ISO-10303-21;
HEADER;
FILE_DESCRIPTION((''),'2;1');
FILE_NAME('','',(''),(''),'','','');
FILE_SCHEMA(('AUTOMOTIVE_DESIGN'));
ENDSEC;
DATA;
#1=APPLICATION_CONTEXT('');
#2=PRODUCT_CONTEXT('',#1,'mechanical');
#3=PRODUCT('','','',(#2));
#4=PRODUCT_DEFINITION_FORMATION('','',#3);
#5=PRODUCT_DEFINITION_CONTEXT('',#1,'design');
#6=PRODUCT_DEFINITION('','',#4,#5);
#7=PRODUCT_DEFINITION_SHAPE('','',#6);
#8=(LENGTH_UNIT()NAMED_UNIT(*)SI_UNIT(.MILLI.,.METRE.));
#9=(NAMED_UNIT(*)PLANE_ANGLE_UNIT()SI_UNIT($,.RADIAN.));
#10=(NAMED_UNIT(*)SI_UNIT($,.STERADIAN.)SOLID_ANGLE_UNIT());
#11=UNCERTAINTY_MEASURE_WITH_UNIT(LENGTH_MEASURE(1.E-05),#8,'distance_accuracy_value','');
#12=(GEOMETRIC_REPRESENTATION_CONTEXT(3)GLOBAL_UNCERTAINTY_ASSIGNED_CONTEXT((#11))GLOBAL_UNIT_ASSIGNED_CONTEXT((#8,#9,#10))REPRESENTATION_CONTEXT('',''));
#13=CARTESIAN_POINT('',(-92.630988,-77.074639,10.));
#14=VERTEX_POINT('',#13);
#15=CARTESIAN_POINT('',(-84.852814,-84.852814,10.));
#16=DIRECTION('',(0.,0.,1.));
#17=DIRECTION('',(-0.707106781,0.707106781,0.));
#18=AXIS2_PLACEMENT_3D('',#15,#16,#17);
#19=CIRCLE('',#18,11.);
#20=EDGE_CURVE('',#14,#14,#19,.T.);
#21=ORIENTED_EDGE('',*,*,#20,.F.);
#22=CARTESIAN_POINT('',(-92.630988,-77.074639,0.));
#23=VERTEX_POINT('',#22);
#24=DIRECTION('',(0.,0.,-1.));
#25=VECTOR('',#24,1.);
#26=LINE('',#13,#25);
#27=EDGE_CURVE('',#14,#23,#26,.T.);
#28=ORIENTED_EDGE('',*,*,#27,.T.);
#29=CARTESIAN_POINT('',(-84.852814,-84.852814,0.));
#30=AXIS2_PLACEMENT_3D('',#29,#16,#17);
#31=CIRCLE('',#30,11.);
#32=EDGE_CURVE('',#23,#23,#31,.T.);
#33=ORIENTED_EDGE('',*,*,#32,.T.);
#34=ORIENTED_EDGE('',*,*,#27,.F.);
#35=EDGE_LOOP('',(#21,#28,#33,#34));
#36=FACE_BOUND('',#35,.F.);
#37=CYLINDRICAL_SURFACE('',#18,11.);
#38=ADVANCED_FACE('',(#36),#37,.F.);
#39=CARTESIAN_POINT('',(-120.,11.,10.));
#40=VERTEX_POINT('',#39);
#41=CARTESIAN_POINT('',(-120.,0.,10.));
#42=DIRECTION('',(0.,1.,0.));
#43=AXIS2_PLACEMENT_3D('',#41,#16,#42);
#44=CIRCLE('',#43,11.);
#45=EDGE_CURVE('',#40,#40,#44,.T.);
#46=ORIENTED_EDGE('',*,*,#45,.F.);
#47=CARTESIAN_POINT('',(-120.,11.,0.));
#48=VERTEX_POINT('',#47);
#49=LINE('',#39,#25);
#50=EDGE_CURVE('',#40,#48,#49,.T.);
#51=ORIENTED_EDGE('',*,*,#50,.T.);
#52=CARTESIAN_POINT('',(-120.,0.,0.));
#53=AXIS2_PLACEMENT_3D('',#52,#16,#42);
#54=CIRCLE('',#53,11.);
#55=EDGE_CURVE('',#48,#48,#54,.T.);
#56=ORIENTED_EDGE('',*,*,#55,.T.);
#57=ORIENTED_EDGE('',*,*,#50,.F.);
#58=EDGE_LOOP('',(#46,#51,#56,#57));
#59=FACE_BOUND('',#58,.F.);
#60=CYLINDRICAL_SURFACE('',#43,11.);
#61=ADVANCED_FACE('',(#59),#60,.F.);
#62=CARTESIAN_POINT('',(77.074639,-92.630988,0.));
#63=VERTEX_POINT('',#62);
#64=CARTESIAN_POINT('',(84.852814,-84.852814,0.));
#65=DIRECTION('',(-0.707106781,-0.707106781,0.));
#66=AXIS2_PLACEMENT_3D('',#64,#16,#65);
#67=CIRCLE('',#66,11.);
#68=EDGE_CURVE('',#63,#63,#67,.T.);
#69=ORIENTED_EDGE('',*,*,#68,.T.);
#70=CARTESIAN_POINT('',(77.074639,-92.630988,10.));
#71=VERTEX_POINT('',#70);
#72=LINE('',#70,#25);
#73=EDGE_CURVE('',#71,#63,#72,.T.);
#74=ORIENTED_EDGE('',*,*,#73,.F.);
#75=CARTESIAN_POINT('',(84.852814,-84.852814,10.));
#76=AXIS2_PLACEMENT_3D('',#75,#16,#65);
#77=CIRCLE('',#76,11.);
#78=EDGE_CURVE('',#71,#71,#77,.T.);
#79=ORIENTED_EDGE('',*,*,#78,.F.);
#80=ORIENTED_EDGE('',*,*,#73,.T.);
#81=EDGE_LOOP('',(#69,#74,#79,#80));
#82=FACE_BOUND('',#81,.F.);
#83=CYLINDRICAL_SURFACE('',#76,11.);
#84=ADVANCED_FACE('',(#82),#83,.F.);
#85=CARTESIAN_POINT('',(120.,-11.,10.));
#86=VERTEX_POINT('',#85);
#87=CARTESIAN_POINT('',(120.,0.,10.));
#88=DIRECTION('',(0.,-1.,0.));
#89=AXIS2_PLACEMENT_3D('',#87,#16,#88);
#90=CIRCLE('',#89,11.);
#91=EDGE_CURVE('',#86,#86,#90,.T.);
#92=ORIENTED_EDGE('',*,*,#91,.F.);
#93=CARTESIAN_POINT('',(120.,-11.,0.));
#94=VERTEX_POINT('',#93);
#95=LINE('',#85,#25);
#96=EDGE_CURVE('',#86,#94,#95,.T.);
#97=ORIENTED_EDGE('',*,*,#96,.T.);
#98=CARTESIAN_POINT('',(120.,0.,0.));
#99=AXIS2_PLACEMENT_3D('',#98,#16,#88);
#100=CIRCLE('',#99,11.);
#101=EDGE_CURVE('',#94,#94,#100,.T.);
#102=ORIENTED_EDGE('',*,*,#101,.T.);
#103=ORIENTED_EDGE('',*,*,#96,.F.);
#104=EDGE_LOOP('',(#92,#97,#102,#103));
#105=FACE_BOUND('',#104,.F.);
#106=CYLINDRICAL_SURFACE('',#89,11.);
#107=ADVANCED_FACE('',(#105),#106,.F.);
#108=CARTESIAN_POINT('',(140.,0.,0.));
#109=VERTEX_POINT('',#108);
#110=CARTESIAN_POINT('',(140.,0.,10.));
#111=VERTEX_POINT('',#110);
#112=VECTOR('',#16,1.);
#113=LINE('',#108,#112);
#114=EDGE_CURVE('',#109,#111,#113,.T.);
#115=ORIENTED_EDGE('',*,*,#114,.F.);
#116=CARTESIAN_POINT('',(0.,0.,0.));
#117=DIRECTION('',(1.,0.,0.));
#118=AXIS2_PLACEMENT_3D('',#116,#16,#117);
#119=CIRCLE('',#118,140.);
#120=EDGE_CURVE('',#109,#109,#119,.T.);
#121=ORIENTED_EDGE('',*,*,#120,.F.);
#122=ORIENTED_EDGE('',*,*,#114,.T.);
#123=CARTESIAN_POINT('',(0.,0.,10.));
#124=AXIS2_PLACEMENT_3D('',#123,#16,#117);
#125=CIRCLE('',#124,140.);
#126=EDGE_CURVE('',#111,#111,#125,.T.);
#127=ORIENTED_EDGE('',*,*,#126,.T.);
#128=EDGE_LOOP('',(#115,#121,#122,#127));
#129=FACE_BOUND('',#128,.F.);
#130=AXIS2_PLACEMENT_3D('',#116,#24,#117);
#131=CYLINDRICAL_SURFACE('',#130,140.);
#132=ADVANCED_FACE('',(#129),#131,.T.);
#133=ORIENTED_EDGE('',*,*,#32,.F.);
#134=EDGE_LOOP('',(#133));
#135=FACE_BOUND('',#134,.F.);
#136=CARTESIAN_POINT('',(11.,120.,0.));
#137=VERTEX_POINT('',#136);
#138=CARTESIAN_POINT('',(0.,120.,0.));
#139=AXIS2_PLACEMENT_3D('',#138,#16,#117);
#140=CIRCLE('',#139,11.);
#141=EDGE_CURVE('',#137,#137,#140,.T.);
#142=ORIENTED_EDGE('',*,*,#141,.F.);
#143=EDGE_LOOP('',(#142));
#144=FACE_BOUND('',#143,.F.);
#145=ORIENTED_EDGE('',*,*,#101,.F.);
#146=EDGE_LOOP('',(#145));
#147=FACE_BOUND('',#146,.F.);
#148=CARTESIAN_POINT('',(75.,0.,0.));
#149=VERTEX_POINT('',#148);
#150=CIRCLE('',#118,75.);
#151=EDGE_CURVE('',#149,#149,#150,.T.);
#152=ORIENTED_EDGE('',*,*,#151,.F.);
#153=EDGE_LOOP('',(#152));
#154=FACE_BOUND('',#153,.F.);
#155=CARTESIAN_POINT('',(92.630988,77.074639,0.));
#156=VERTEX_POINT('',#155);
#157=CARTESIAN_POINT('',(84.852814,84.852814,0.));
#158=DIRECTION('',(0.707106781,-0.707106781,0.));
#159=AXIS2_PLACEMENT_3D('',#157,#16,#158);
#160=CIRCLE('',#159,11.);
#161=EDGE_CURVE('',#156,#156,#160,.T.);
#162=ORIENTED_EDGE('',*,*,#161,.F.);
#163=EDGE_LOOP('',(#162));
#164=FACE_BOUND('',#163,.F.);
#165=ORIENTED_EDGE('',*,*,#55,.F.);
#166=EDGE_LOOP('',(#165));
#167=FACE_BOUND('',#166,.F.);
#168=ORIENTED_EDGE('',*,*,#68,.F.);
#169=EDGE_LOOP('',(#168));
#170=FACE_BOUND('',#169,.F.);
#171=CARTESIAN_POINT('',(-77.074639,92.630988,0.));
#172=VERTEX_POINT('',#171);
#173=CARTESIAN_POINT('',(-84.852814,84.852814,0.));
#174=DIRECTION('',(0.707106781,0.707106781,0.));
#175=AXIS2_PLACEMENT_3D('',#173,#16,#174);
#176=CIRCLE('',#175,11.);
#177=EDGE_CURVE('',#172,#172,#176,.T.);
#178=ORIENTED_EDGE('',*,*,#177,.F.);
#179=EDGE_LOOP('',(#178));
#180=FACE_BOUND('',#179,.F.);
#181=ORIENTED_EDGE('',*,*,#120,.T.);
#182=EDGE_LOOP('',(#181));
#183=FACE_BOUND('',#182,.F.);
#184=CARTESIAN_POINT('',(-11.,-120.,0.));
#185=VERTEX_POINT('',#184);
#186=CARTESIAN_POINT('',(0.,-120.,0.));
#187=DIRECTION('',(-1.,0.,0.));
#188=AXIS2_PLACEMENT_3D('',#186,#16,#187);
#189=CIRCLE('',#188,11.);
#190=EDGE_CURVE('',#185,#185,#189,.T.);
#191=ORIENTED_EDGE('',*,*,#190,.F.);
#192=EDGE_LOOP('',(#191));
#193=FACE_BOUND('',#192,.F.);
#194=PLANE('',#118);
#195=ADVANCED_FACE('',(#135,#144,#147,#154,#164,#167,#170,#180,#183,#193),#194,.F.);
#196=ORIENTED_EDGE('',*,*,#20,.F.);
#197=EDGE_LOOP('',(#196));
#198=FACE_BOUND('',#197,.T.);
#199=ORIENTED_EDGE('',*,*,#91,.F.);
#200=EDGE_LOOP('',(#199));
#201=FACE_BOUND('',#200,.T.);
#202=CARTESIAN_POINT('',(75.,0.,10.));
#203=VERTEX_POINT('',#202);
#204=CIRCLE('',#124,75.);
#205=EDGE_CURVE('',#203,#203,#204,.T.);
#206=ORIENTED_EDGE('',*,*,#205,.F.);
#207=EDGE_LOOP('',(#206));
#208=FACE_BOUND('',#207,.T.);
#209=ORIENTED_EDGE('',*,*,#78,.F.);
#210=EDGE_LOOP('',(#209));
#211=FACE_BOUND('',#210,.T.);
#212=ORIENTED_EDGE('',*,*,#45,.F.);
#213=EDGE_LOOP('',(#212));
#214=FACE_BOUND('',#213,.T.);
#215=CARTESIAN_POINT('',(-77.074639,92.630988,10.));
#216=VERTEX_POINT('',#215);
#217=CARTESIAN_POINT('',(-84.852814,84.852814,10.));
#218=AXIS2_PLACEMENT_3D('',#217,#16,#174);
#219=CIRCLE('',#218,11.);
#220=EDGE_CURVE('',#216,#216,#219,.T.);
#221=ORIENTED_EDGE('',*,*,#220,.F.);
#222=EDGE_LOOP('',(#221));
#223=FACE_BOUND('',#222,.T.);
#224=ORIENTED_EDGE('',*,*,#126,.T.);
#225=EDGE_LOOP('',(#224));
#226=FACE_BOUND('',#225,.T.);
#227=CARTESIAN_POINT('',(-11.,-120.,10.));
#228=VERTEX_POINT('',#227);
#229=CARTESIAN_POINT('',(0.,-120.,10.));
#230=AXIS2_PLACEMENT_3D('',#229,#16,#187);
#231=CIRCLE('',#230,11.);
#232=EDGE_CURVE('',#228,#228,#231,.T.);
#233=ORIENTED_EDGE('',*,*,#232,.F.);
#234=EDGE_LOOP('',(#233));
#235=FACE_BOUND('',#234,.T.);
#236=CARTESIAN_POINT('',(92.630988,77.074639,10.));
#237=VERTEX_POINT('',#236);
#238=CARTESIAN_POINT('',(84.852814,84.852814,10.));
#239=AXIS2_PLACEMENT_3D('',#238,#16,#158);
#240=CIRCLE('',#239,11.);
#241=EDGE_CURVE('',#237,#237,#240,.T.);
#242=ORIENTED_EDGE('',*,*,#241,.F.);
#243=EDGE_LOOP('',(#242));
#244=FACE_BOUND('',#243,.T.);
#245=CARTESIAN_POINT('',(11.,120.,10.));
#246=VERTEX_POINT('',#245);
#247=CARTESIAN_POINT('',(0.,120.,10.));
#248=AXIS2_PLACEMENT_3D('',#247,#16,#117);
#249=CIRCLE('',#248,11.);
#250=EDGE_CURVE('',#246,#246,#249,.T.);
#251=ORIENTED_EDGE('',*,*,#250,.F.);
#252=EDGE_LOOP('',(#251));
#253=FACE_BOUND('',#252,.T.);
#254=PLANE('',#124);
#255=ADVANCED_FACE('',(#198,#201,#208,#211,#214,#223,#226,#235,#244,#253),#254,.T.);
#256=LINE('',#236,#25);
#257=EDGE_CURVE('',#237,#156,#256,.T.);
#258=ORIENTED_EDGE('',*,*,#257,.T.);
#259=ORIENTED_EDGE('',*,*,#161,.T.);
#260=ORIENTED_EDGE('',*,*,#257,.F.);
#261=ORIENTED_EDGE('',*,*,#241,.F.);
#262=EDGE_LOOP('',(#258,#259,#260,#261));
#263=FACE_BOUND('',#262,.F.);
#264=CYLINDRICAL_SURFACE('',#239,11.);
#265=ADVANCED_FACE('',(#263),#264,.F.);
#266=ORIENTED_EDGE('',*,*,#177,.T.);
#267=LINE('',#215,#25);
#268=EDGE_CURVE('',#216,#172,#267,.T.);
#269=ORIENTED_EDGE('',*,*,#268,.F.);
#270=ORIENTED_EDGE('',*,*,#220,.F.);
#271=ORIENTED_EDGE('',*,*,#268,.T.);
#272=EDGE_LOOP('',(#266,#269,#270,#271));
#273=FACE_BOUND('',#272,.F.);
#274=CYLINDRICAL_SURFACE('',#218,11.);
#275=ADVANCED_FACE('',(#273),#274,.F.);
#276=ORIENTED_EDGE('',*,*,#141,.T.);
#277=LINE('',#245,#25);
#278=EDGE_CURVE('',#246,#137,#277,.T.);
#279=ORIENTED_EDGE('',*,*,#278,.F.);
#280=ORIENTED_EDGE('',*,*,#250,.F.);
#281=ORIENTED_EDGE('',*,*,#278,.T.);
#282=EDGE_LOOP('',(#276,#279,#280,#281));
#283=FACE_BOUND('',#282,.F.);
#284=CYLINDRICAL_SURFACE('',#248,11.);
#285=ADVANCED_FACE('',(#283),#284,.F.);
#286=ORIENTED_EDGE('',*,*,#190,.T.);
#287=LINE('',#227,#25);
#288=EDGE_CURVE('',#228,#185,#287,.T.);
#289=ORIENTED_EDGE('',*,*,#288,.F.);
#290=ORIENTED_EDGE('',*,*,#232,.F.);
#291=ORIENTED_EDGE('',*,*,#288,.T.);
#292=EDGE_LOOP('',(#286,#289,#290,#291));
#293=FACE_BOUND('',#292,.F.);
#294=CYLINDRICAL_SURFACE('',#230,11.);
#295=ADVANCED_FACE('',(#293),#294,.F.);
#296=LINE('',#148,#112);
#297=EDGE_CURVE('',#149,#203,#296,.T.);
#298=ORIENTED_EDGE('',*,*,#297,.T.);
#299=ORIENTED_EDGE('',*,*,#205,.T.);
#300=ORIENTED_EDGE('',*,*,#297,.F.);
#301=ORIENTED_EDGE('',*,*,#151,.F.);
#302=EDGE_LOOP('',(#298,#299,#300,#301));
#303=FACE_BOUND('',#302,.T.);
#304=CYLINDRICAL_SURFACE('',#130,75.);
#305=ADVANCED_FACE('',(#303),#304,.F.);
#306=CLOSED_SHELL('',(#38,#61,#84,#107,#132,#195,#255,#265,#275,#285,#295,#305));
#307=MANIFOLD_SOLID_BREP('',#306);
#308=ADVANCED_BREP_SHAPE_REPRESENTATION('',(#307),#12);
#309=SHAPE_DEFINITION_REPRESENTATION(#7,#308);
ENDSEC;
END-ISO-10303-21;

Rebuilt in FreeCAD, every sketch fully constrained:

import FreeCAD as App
import Part
import Sketcher
from FreeCAD import Vector
Q = App.Units.Quantity

doc = App.newDocument("Part")
body = doc.addObject("PartDesign::Body", "Body")

# Sketch on XY plane
sketch1 = body.newObject("Sketcher::SketchObject", "Sketch")
sketch1.AttachmentSupport = (doc.getObject("XY_Plane"), [""])
sketch1.MapMode = "FlatFace"
sketch1.addGeometry(Part.Circle(Vector(0, 0, 0), Vector(0, 0, 1), 140), False)
sketch1.addGeometry(Part.Circle(Vector(0, 0, 0), Vector(0, 0, 1), 75), False)
sketch1.addConstraint(Sketcher.Constraint("Coincident", 0, 3, -1, 1))
sketch1.addConstraint(Sketcher.Constraint("Coincident", 1, 3, -1, 1))
sketch1.addConstraint(Sketcher.Constraint("Diameter", 0, Q("280 mm")))
sketch1.addConstraint(Sketcher.Constraint("Diameter", 1, Q("150 mm")))
pad1 = body.newObject("PartDesign::Pad", "Pad")
pad1.Profile = sketch1
pad1.Length = 10

# Sketch on XY plane
sketch2 = body.newObject("Sketcher::SketchObject", "Sketch001")
sketch2.AttachmentSupport = (doc.getObject("XY_Plane"), [""])
sketch2.MapMode = "FlatFace"
sketch2.AttachmentOffset = App.Placement(Vector(0, 0, 10), App.Rotation())
sketch2.addGeometry(Part.Circle(Vector(0, 120, 0), Vector(0, 0, 1), 11), False)
sketch2.addConstraint(Sketcher.Constraint("PointOnObject", 0, 3, -2))
sketch2.addConstraint(Sketcher.Constraint("Diameter", 0, Q("22 mm")))
sketch2.addConstraint(Sketcher.Constraint("DistanceY", -1, 1, 0, 3, Q("120 mm")))
pocket1 = body.newObject("PartDesign::Pocket", "Pocket")
pocket1.Profile = sketch2
pocket1.Length = 10
doc.recompute()

polarpattern = body.newObject("PartDesign::PolarPattern", "PolarPattern")
polarpattern.Originals = [pocket1]
polarpattern.Axis = (doc.getObject("Z_Axis"), [""])
polarpattern.Angle = 360
polarpattern.Occurrences = 8
body.Tip = polarpattern

doc.recompute()
